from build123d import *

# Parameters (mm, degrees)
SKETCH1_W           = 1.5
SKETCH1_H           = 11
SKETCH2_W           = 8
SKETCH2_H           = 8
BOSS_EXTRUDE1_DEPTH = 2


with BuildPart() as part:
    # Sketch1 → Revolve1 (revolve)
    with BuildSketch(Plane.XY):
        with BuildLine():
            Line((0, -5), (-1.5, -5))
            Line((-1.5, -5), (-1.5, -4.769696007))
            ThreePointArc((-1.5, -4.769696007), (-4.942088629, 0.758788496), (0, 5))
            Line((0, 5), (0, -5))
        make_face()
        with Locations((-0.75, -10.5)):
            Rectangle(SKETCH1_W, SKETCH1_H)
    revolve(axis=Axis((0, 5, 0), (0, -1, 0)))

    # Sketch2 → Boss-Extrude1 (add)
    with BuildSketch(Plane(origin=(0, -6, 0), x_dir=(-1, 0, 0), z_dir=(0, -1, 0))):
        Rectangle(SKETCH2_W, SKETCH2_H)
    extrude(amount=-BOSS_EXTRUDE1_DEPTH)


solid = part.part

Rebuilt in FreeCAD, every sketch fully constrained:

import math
import FreeCAD as App
import Part
import Sketcher

V = App.Vector
Q = App.Units.Quantity


def add_polygon(sketch, points):
    """Adds a closed chain of lines whose ends are joined by coincident constraints."""
    first, n = sketch.GeometryCount, len(points)
    for a, b in zip(points, points[1:] + points[:1]):
        sketch.addGeometry(Part.LineSegment(App.Vector(*a, 0), App.Vector(*b, 0)), False)
    for i in range(n):
        sketch.addConstraint(Sketcher.Constraint("Coincident", first + i, 2, first + (i + 1) % n, 1))

doc = App.newDocument("Part")
body = doc.addObject("PartDesign::Body", "Body")

sketch1 = body.newObject("Sketcher::SketchObject", "Sketch")
sketch1.AttachmentSupport = (doc.getObject("XY_Plane"), [""])
sketch1.MapMode = "FlatFace"
sketch1.addGeometry([
    Part.LineSegment(V(-1.5, -4.8, 0), V(-1.5, -16, 0)),
    Part.LineSegment(V(-1.5, -16, 0), V(0, -16, 0)),
    Part.LineSegment(V(0, -16, 0), V(0, 5, 0)),
    Part.ArcOfCircle(Part.Circle(V(0, 0, 0), V(0, 0, 1), 5), math.radians(90), math.radians(253)),
], False)
sketch1.addConstraint([
    Sketcher.Constraint("Coincident", 0, 2, 1, 1),
    Sketcher.Constraint("Coincident", 1, 2, 2, 1),
    Sketcher.Constraint("Coincident", 2, 2, 3, 1),
    Sketcher.Constraint("Coincident", 3, 2, 0, 1),
    Sketcher.Constraint("Vertical", 0),
    Sketcher.Constraint("Horizontal", 1),
    Sketcher.Constraint("Vertical", 2),
    Sketcher.Constraint("Coincident", 3, 3, -1, 1),
    Sketcher.Constraint("PointOnObject", 1, 2, -2),
    Sketcher.Constraint("Radius", 3, Q("5 mm")),
    Sketcher.Constraint("DistanceY", 2, 1, 2, 2, Q("21 mm")),
    Sketcher.Constraint("DistanceX", 1, 1, 1, 2, Q("1.5 mm")),
])
revolution = body.newObject("PartDesign::Revolution", "Revolution")
revolution.Profile = sketch1
revolution.ReferenceAxis = (sketch1, ["V_Axis"])
revolution.Angle = 360

sketch2 = body.newObject("Sketcher::SketchObject", "Sketch001")
sketch2.AttachmentSupport = (doc.getObject("XZ_Plane"), [""])
sketch2.MapMode = "FlatFace"
sketch2.AttachmentOffset = App.Placement(V(0, 0, 6), App.Rotation())
add_polygon(sketch2, [(4, -4), (4, 4), (-4, 4), (-4, -4)])
sketch2.addConstraint([
    Sketcher.Constraint("Vertical", 0),
    Sketcher.Constraint("Horizontal", 1),
    Sketcher.Constraint("Vertical", 2),
    Sketcher.Constraint("Horizontal", 3),
    Sketcher.Constraint("Symmetric", 0, 2, 2, 2, -1, 1),
    Sketcher.Constraint("Equal", 3, 0),
    Sketcher.Constraint("DistanceX", 1, 2, 1, 1, Q("8 mm")),
])
pad1 = body.newObject("PartDesign::Pad", "Pad")
pad1.Profile = sketch2
pad1.Length = 2
pad1.Reversed = True

doc.recompute()
